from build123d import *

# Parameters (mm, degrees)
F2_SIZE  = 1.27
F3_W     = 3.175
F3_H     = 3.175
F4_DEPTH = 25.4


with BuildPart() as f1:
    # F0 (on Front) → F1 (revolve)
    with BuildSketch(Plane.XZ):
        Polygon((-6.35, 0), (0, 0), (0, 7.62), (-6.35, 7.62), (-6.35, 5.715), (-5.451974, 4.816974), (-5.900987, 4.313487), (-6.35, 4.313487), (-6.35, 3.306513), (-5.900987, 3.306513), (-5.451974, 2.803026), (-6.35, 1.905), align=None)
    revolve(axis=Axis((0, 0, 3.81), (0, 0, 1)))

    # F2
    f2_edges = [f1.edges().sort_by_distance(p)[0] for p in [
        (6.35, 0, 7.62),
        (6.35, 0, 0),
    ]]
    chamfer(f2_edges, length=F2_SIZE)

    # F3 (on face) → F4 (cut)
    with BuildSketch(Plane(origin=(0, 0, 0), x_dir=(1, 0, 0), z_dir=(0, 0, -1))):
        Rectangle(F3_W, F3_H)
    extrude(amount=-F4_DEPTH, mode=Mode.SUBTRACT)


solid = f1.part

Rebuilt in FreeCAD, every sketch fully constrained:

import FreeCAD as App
import Part
import Sketcher
Q = App.Units.Quantity


def edges_at(feature, points):
    """Names of the edges that pass closest to the given points."""
    edges = feature.Shape.Edges
    near = lambda p: min(range(len(edges)), key=lambda i: edges[i].distToShape(Part.Vertex(*p))[0])
    return sorted({f"Edge{near(p) + 1}" for p in points})


def add_polygon(sketch, points):
    """Adds a closed chain of lines whose ends are joined by coincident constraints."""
    first, n = sketch.GeometryCount, len(points)
    for a, b in zip(points, points[1:] + points[:1]):
        sketch.addGeometry(Part.LineSegment(App.Vector(*a, 0), App.Vector(*b, 0)), False)
    for i in range(n):
        sketch.addConstraint(Sketcher.Constraint("Coincident", first + i, 2, first + (i + 1) % n, 1))

doc = App.newDocument("Part")
body = doc.addObject("PartDesign::Body", "Body")

# Sketch on XZ plane
sketch1 = doc.addObject("Sketcher::SketchObject", "Sketch")
body.addObject(sketch1)
sketch1.AttachmentSupport = (doc.XZ_Plane, [""])
sketch1.MapMode = "FlatFace"
add_polygon(sketch1, [(-6.35, 0), (0, 0), (0, 7.62), (-6.35, 7.62), (-6.35, 5.71), (-5.45, 4.82), (-5.9, 4.31), (-6.35, 4.31), (-6.35, 3.31), (-5.9, 3.31), (-5.45, 2.8), (-6.35, 1.91)])  # lines 0-11
sketch1.addConstraint(Sketcher.Constraint("Horizontal", 0))
sketch1.addConstraint(Sketcher.Constraint("Vertical", 1))
sketch1.addConstraint(Sketcher.Constraint("Horizontal", 2))
sketch1.addConstraint(Sketcher.Constraint("Vertical", 3))
sketch1.addConstraint(Sketcher.Constraint("Horizontal", 6))
sketch1.addConstraint(Sketcher.Constraint("Vertical", 7))
sketch1.addConstraint(Sketcher.Constraint("Horizontal", 8))
sketch1.addConstraint(Sketcher.Constraint("Vertical", 11))
sketch1.addConstraint(Sketcher.Constraint("Coincident", 0, 2, -1, 1))
sketch1.addConstraint(Sketcher.Constraint("Perpendicular", 4, 10))
sketch1.addConstraint(Sketcher.Constraint("Vertical", 3, 2, 6, 2))
sketch1.addConstraint(Sketcher.Constraint("Vertical", 5, 2, 8, 2))
sketch1.addConstraint(Sketcher.Constraint("Vertical", 4, 2, 9, 2))
sketch1.addConstraint(Sketcher.Constraint("Vertical", 7, 2, 10, 2))
sketch1.addConstraint(Sketcher.Constraint("Equal", 3, 11))
sketch1.addConstraint(Sketcher.Constraint("Equal", 5, 9))
sketch1.addConstraint(Sketcher.Constraint("Equal", 4, 10))
sketch1.addConstraint(Sketcher.Constraint("DistanceY", 1, 1, 1, 2, Q("0.3 in")))
sketch1.addConstraint(Sketcher.Constraint("DistanceX", 0, 1, 0, 2, Q("0.25 in")))
sketch1.addConstraint(Sketcher.Constraint("Distance", 4, Q("0.05 in")))
sketch1.addConstraint(Sketcher.Constraint("DistanceY", 3, 2, 3, 1, Q("0.075 in")))
sketch1.addConstraint(Sketcher.Constraint("Distance", 5, Q("0.67462 mm")))
sketch1.addConstraint(Sketcher.Constraint("DistanceX", 6, 2, 6, 1, Q("0.449013 mm")))
revolution = doc.addObject("PartDesign::Revolution", "Revolution")
body.addObject(revolution)
revolution.Profile = sketch1
revolution.ReferenceAxis = (sketch1, ["V_Axis"])
revolution.Angle = 360
doc.recompute()

chamfer = doc.addObject("PartDesign::Chamfer", "Chamfer")
body.addObject(chamfer)
chamfer.Base = (revolution, edges_at(revolution, [(6.35, 0, 7.62), (6.35, 0, 0)]))
chamfer.Size = Q("0.05 in")

# Sketch on XY plane
sketch2 = doc.addObject("Sketcher::SketchObject", "Sketch001")
body.addObject(sketch2)
sketch2.AttachmentSupport = (doc.XY_Plane, [""])
sketch2.MapMode = "FlatFace"
add_polygon(sketch2, [(-1.6, -1.6), (-1.6, 1.6), (1.6, 1.6), (1.6, -1.6)])  # lines 0-3
sketch2.addConstraint(Sketcher.Constraint("Vertical", 0))
sketch2.addConstraint(Sketcher.Constraint("Horizontal", 1))
sketch2.addConstraint(Sketcher.Constraint("Vertical", 2))
sketch2.addConstraint(Sketcher.Constraint("Horizontal", 3))
sketch2.addConstraint(Sketcher.Constraint("Symmetric", 0, 2, 2, 2, -1, 1))
sketch2.addConstraint(Sketcher.Constraint("Equal", 3, 0))
sketch2.addConstraint(Sketcher.Constraint("DistanceX", 1, 1, 1, 2, Q("0.125 in")))
pocket1 = doc.addObject("PartDesign::Pocket", "Pocket")
body.addObject(pocket1)
pocket1.Profile = sketch2
pocket1.Length = Q("1 in")
pocket1.Reversed = True

doc.recompute()
